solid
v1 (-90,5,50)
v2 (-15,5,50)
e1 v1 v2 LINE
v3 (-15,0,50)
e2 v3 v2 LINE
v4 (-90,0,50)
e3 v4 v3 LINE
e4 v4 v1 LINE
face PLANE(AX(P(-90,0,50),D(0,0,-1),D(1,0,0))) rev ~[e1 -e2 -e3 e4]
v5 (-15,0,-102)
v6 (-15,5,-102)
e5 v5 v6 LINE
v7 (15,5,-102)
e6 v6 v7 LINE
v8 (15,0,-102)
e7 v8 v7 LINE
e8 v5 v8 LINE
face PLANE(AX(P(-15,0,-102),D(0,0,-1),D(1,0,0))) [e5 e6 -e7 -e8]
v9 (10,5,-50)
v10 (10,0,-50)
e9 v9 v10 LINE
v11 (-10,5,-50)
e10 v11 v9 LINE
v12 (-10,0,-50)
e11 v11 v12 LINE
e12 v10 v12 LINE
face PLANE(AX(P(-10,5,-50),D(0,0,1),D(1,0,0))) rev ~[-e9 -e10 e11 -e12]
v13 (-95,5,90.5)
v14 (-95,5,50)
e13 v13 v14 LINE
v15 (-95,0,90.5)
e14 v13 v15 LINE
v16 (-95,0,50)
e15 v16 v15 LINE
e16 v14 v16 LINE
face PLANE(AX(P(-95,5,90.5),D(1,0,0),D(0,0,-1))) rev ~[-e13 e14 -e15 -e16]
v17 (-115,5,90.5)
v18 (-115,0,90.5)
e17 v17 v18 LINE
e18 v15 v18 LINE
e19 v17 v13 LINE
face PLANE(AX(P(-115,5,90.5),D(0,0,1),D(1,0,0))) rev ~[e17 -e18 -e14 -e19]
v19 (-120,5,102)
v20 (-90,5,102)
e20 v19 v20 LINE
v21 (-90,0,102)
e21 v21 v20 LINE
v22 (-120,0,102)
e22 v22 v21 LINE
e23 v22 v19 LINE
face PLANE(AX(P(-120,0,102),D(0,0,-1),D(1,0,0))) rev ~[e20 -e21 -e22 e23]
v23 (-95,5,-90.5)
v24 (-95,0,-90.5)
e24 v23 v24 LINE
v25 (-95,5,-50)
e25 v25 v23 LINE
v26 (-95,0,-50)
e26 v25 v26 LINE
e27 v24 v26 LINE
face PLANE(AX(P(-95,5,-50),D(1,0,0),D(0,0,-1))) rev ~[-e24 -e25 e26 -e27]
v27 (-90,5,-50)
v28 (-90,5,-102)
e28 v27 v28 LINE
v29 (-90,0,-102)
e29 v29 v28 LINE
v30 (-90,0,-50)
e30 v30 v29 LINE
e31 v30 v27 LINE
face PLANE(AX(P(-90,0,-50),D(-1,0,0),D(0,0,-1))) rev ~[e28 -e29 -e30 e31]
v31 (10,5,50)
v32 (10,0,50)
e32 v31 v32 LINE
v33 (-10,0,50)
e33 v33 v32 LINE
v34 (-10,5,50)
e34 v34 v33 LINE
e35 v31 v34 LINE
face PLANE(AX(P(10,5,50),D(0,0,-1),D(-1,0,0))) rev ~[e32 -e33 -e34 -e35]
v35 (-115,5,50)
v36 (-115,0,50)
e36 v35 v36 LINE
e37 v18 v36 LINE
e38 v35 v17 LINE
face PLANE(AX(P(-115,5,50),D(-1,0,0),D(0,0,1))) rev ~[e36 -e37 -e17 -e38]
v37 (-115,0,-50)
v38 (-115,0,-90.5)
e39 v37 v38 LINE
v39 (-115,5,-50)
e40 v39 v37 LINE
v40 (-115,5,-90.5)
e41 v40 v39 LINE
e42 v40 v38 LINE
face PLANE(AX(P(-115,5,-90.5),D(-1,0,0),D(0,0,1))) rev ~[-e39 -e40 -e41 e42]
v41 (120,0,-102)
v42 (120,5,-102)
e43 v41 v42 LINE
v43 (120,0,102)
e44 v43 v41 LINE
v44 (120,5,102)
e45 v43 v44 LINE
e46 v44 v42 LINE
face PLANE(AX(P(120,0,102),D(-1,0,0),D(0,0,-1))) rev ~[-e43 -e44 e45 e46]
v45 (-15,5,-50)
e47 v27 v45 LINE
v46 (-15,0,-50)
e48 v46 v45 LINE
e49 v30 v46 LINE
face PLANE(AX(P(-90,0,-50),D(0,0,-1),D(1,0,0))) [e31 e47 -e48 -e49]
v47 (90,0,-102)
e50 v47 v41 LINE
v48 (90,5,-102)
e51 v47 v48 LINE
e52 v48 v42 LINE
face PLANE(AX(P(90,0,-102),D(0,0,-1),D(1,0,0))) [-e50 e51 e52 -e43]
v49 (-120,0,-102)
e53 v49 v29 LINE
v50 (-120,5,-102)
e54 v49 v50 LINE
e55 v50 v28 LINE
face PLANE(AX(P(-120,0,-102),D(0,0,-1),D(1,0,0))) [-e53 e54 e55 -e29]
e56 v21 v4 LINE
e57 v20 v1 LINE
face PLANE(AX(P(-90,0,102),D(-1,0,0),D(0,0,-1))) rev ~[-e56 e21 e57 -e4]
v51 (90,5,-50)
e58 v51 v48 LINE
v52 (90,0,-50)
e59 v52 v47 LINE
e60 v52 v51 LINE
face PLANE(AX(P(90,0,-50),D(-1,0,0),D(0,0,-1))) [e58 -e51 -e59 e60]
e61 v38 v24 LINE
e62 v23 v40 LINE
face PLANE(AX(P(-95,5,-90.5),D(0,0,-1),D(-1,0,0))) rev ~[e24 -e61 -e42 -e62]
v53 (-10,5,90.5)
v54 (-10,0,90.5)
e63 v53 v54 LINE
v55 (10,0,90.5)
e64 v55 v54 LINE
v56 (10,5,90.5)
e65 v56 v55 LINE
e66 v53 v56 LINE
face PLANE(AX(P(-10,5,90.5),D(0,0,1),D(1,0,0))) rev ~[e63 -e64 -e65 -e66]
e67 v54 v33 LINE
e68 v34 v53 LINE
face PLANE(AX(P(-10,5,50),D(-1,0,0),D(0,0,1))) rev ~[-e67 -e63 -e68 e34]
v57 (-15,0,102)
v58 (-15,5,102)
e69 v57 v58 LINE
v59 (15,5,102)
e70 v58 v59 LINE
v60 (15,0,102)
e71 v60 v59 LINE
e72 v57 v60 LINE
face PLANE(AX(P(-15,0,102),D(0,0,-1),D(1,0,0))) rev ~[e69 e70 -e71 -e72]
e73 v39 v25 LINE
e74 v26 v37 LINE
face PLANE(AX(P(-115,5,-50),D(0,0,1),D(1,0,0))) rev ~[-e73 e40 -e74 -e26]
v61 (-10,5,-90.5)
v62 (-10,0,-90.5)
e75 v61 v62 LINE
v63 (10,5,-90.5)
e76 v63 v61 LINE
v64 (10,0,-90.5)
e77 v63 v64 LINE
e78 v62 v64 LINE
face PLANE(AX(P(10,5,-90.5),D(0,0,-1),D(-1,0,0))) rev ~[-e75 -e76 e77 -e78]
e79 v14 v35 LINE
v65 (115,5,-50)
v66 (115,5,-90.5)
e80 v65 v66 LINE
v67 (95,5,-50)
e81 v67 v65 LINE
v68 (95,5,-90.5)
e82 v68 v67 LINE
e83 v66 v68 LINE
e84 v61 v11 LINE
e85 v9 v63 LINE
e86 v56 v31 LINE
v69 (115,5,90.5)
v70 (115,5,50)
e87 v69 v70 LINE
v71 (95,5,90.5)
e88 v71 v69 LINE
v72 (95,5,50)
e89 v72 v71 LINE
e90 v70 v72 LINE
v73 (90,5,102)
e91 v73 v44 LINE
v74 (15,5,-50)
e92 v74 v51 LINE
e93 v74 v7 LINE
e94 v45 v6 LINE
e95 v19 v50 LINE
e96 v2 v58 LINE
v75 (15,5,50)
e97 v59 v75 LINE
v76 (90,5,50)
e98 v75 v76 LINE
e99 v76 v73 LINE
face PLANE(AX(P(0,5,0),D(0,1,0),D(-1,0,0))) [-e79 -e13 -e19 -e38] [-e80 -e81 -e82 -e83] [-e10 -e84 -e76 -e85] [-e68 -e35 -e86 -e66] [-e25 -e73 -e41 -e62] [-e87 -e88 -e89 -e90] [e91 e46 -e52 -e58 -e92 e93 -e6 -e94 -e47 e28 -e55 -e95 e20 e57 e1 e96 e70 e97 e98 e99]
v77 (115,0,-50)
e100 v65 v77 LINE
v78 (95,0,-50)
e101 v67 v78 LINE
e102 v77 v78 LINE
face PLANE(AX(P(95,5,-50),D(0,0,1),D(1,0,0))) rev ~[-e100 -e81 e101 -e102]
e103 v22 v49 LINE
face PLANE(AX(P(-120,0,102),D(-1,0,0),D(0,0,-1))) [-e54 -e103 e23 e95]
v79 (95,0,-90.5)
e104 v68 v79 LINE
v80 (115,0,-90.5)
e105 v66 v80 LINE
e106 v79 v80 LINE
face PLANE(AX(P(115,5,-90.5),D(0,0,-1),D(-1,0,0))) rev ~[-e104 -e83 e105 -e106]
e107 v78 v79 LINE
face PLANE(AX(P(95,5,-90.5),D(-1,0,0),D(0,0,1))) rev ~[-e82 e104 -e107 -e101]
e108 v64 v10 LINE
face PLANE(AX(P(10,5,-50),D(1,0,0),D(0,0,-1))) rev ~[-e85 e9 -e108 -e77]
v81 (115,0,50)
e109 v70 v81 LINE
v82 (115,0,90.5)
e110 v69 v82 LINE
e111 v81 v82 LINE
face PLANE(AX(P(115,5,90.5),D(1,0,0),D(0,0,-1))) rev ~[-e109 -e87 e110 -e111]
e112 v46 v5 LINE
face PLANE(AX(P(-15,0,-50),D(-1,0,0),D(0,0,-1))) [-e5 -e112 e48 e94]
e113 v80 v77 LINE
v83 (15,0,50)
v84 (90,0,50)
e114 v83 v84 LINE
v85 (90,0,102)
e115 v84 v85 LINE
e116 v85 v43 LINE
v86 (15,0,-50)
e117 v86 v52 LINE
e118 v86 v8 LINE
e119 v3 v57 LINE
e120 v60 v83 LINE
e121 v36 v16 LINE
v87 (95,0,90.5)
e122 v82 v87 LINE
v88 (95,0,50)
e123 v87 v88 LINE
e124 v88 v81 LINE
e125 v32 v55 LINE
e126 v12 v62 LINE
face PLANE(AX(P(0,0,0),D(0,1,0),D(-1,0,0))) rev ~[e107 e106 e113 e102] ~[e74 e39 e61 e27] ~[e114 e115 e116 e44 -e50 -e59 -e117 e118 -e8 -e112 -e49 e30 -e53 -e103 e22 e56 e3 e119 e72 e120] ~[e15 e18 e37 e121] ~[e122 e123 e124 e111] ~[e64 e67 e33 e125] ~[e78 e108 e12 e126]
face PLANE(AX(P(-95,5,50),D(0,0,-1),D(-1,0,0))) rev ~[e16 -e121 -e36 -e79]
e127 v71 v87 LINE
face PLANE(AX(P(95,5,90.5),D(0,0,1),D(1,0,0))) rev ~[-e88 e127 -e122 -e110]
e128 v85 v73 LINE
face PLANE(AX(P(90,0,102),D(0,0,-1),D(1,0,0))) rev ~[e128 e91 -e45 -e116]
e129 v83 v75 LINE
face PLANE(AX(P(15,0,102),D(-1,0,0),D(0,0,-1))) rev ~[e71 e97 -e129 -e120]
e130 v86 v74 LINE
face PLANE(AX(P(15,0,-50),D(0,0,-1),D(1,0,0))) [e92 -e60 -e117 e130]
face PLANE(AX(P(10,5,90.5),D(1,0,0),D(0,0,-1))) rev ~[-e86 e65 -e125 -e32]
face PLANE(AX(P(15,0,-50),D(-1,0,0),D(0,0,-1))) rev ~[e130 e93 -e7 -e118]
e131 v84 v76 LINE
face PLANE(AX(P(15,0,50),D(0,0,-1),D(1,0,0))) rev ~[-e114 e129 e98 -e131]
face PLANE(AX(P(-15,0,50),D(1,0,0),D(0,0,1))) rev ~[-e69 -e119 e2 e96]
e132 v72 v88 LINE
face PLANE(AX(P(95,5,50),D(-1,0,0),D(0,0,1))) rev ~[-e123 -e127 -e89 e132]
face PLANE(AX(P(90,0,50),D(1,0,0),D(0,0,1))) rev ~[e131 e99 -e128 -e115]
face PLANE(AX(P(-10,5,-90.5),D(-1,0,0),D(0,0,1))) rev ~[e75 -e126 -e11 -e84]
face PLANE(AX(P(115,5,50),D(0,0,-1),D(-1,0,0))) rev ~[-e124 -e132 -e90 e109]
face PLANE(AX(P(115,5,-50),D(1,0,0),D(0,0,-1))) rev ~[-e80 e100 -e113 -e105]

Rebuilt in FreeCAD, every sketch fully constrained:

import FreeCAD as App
import Part
import Sketcher

V = App.Vector
Q = App.Units.Quantity


def add_polygon(sketch, points):
    """Adds a closed chain of lines whose ends are joined by coincident constraints."""
    first, n = sketch.GeometryCount, len(points)
    for a, b in zip(points, points[1:] + points[:1]):
        sketch.addGeometry(Part.LineSegment(App.Vector(*a, 0), App.Vector(*b, 0)), False)
    for i in range(n):
        sketch.addConstraint(Sketcher.Constraint("Coincident", first + i, 2, first + (i + 1) % n, 1))

doc = App.newDocument("Part")
body = doc.addObject("PartDesign::Body", "Body")

# Sketch on XZ plane
sketch1 = body.newObject("Sketcher::SketchObject", "Sketch")
sketch1.AttachmentSupport = (doc.getObject("XZ_Plane"), [""])
sketch1.MapMode = "FlatFace"
add_polygon(sketch1, [(-120, -102), (-120, 102), (-90, 102), (-90, 50), (-15, 50), (-15, 102), (15, 102), (15, 50), (90, 50), (90, 102), (120, 102), (120, -102), (90, -102), (90, -50), (15, -50), (15, -102), (-15, -102), (-15, -50), (-90, -50), (-90, -102)])  # lines 0-19
sketch1.addConstraint([
    Sketcher.Constraint("Vertical", 0),
    Sketcher.Constraint("Horizontal", 1),
    Sketcher.Constraint("Vertical", 2),
    Sketcher.Constraint("Horizontal", 3),
    Sketcher.Constraint("Vertical", 4),
    Sketcher.Constraint("Horizontal", 5),
    Sketcher.Constraint("Vertical", 6),
    Sketcher.Constraint("Horizontal", 7),
    Sketcher.Constraint("Vertical", 8),
    Sketcher.Constraint("Horizontal", 9),
    Sketcher.Constraint("Vertical", 10),
    Sketcher.Constraint("Horizontal", 11),
    Sketcher.Constraint("Vertical", 12),
    Sketcher.Constraint("Horizontal", 13),
    Sketcher.Constraint("Vertical", 14),
    Sketcher.Constraint("Horizontal", 15),
    Sketcher.Constraint("Vertical", 16),
    Sketcher.Constraint("Horizontal", 17),
    Sketcher.Constraint("Vertical", 18),
    Sketcher.Constraint("Horizontal", 19),
    Sketcher.Constraint("Symmetric", 0, 2, 10, 2, -1, 1),
    Sketcher.Constraint("Symmetric", 2, 2, 12, 2, -1, 1),
    Sketcher.Constraint("Symmetric", 4, 2, 14, 2, -1, 1),
    Sketcher.Constraint("Symmetric", 6, 2, 16, 2, -1, 1),
    Sketcher.Constraint("Symmetric", 8, 2, 18, 2, -1, 1),
    Sketcher.Constraint("Symmetric", 3, 2, 6, 2, -2),
    Sketcher.Constraint("Symmetric", 1, 2, 8, 2, -2),
    Sketcher.Constraint("Horizontal", 1, 2, 4, 2),
    Sketcher.Constraint("Equal", 1, 5),
    Sketcher.Constraint("DistanceX", 1, 1, 1, 2, Q("30 mm")),
    Sketcher.Constraint("DistanceX", 3, 1, 3, 2, Q("75 mm")),
    Sketcher.Constraint("DistanceY", 0, 1, 0, 2, Q("204 mm")),
    Sketcher.Constraint("DistanceY", 2, 2, 2, 1, Q("52 mm")),
])
pad1 = body.newObject("PartDesign::Pad", "Pad")
pad1.Profile = sketch1
pad1.Length = 5
pad1.Reversed = True

# Sketch on XZ plane
sketch2 = body.newObject("Sketcher::SketchObject", "Sketch001")
sketch2.AttachmentSupport = (doc.getObject("XZ_Plane"), [""])
sketch2.MapMode = "FlatFace"
sketch2.AttachmentOffset = App.Placement(V(0, 0, -5), App.Rotation())
add_polygon(sketch2, [(-115, 50), (-115, 90), (-95, 90), (-95, 50)])  # lines 0-3
add_polygon(sketch2, [(-10, 50), (-10, 90), (10, 90), (10, 50)])  # lines 4-7
add_polygon(sketch2, [(95, 50), (95, 90), (115, 90), (115, 50)])  # lines 8-11
add_polygon(sketch2, [(-115, -90), (-115, -50), (-95, -50), (-95, -90)])  # lines 12-15
add_polygon(sketch2, [(-10, -90), (-10, -50), (10, -50), (10, -90)])  # lines 16-19
add_polygon(sketch2, [(95, -90), (95, -50), (115, -50), (115, -90)])  # lines 20-23
sketch2.addConstraint([
    Sketcher.Constraint("Vertical", 0),
    Sketcher.Constraint("Horizontal", 1),
    Sketcher.Constraint("Vertical", 2),
    Sketcher.Constraint("Horizontal", 3),
    Sketcher.Constraint("Vertical", 4),
    Sketcher.Constraint("Horizontal", 5),
    Sketcher.Constraint("Vertical", 6),
    Sketcher.Constraint("Horizontal", 7),
    Sketcher.Constraint("Vertical", 8),
    Sketcher.Constraint("Horizontal", 9),
    Sketcher.Constraint("Vertical", 10),
    Sketcher.Constraint("Horizontal", 11),
    Sketcher.Constraint("Vertical", 12),
    Sketcher.Constraint("Horizontal", 13),
    Sketcher.Constraint("Vertical", 14),
    Sketcher.Constraint("Horizontal", 15),
    Sketcher.Constraint("Vertical", 16),
    Sketcher.Constraint("Horizontal", 17),
    Sketcher.Constraint("Vertical", 18),
    Sketcher.Constraint("Horizontal", 19),
    Sketcher.Constraint("Vertical", 20),
    Sketcher.Constraint("Horizontal", 21),
    Sketcher.Constraint("Vertical", 22),
    Sketcher.Constraint("Horizontal", 23),
    Sketcher.Constraint("Symmetric", 10, 2, 12, 2, -1, 1),
    Sketcher.Constraint("Symmetric", 8, 2, 14, 2, -1, 1),
    Sketcher.Constraint("Symmetric", 6, 2, 16, 2, -1, 1),
    Sketcher.Constraint("Symmetric", 4, 2, 18, 2, -1, 1),
    Sketcher.Constraint("Symmetric", 2, 2, 20, 2, -1, 1),
    Sketcher.Constraint("Symmetric", 0, 2, 22, 2, -1, 1),
    Sketcher.Constraint("Symmetric", 1, 2, 8, 2, -2),
    Sketcher.Constraint("Symmetric", 3, 2, 10, 2, -2),
    Sketcher.Constraint("Horizontal", 1, 2, 4, 2),
    Sketcher.Constraint("Horizontal", 3, 2, 6, 2),
    Sketcher.Constraint("Vertical", 7, 2, 16, 2),
    Sketcher.Constraint("Equal", 3, 5),
    Sketcher.Constraint("DistanceY", 0, 1, 0, 2, Q("40.5 mm")),
    Sketcher.Constraint("DistanceX", 1, 1, 1, 2, Q("20 mm")),
    Sketcher.Constraint("DistanceX", 0, 2, -1, 1, Q("115 mm")),
    Sketcher.Constraint("DistanceY", -1, 1, 2, 2, Q("50 mm")),
])
pocket1 = body.newObject("PartDesign::Pocket", "Pocket")
pocket1.Profile = sketch2
pocket1.Type = "UpToFirst"
pocket1.Reversed = True

doc.recompute()
